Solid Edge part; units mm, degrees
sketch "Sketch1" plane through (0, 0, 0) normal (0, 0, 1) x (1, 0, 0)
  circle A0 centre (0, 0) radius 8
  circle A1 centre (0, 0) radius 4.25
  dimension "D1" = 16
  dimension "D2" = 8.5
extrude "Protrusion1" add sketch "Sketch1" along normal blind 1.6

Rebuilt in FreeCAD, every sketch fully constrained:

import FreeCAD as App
import Part
import Sketcher

V = App.Vector

doc = App.newDocument("Part")
body = doc.addObject("PartDesign::Body", "Body")

# Sketch on XY plane
sketch1 = doc.addObject("Sketcher::SketchObject", "Sketch")
body.addObject(sketch1)
sketch1.AttachmentSupport = (doc.XY_Plane, [""])
sketch1.MapMode = "FlatFace"
sketch1.addGeometry([
    Part.Circle(V(0, 0, 0), V(0, 0, 1), 8),
    Part.Circle(V(0, 0, 0), V(0, 0, 1), 4.2),
], False)
sketch1.addConstraint([
    Sketcher.Constraint("Coincident", 0, 3, -1, 1),
    Sketcher.Constraint("Coincident", 1, 3, -1, 1),
    Sketcher.Constraint("Diameter", 0, 16.0),
    Sketcher.Constraint("Diameter", 1, 8.5),
])
pad1 = doc.addObject("PartDesign::Pad", "Pad")
body.addObject(pad1)
pad1.Profile = sketch1
pad1.Length = 1.6

doc.recompute()
